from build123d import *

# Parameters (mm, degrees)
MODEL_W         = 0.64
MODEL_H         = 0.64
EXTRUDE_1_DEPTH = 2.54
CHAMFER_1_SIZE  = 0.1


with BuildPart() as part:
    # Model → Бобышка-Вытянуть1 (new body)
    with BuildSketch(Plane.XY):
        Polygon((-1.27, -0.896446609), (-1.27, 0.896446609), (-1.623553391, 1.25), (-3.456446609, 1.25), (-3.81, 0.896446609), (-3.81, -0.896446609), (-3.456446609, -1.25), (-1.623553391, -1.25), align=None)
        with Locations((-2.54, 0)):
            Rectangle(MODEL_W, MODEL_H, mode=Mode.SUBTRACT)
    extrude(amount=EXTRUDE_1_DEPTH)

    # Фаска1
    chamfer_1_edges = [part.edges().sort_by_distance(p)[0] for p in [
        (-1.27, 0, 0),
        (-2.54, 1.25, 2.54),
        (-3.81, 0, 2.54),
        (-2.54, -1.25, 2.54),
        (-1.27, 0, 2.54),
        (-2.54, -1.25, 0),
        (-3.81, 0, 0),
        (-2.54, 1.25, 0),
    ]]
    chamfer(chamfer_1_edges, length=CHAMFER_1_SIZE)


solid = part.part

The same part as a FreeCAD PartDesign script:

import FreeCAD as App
import Part
import Sketcher

V = App.Vector


def edges_at(feature, points):
    """Names of the edges that pass closest to the given points."""
    edges = feature.Shape.Edges
    near = lambda p: min(range(len(edges)), key=lambda i: edges[i].distToShape(Part.Vertex(*p))[0])
    return sorted({f"Edge{near(p) + 1}" for p in points})

doc = App.newDocument("Part")
params = doc.addObject("Spreadsheet::Sheet", "Params")
for row, (alias, value) in enumerate([
    ("sketch1_length", "0.5 mm"),
    ("sketch1_width", "0.64 mm"),
    ("pad1_length", "2.54 mm"),
    ("chamfer_size", "0.1 mm"),
], start=1):
    params.set(f"A{row}", alias)
    params.set(f"B{row}", "=" + value)
    params.setAlias(f"B{row}", alias)

body = doc.addObject("PartDesign::Body", "Body")

# Sketch on XY plane
sketch1 = doc.addObject("Sketcher::SketchObject", "Sketch")
body.addObject(sketch1)
sketch1.AttachmentSupport = (doc.XY_Plane, [""])
sketch1.MapMode = "FlatFace"
sketch1.addGeometry([
    Part.LineSegment(V(-1.3, -0.9, 0), V(-1.3, 0.9, 0)),  # 0
    Part.LineSegment(V(-1.3, 0.9, 0), V(-1.6, 1.2, 0)),  # 1
    Part.LineSegment(V(-1.6, 1.2, 0), V(-3.5, 1.2, 0)),  # 2
    Part.LineSegment(V(-3.5, 1.2, 0), V(-3.8, 0.9, 0)),  # 3
    Part.LineSegment(V(-3.8, 0.9, 0), V(-3.8, -0.9, 0)),  # 4
    Part.LineSegment(V(-3.8, -0.9, 0), V(-3.5, -1.2, 0)),  # 5
    Part.LineSegment(V(-3.5, -1.2, 0), V(-1.6, -1.2, 0)),  # 6
    Part.LineSegment(V(-1.6, -1.2, 0), V(-1.3, -0.9, 0)),  # 7
    Part.LineSegment(V(-2.2, -0.3, 0), V(-2.9, -0.3, 0)),  # 8
    Part.LineSegment(V(-2.9, -0.3, 0), V(-2.9, 0.3, 0)),  # 9
    Part.LineSegment(V(-2.9, 0.3, 0), V(-2.2, 0.3, 0)),  # 10
    Part.LineSegment(V(-2.2, 0.3, 0), V(-2.2, -0.3, 0)),  # 11
], False)
sketch1.addConstraint([
    Sketcher.Constraint("Coincident", 0, 2, 1, 1),
    Sketcher.Constraint("Coincident", 1, 2, 2, 1),
    Sketcher.Constraint("Coincident", 2, 2, 3, 1),
    Sketcher.Constraint("Coincident", 3, 2, 4, 1),
    Sketcher.Constraint("Coincident", 4, 2, 5, 1),
    Sketcher.Constraint("Coincident", 5, 2, 6, 1),
    Sketcher.Constraint("Coincident", 6, 2, 7, 1),
    Sketcher.Constraint("Coincident", 7, 2, 0, 1),
    Sketcher.Constraint("Coincident", 8, 2, 9, 1),
    Sketcher.Constraint("Coincident", 9, 2, 10, 1),
    Sketcher.Constraint("Coincident", 10, 2, 11, 1),
    Sketcher.Constraint("Coincident", 11, 2, 8, 1),
    Sketcher.Constraint("Vertical", 0),
    Sketcher.Constraint("Horizontal", 2),
    Sketcher.Constraint("Vertical", 4),
    Sketcher.Constraint("Horizontal", 6),
    Sketcher.Constraint("Horizontal", 8),
    Sketcher.Constraint("Vertical", 9),
    Sketcher.Constraint("Horizontal", 10),
    Sketcher.Constraint("Vertical", 11),
    Sketcher.Constraint("Symmetric", 2, 2, 5, 2, -1),
    Sketcher.Constraint("Perpendicular", 1, 3),
    Sketcher.Constraint("Perpendicular", 3, 5),
    Sketcher.Constraint("Perpendicular", 5, 7),
    Sketcher.Constraint("Horizontal", 0, 2, 3, 2),
    Sketcher.Constraint("Horizontal", 4, 2, 7, 2),
    Sketcher.Constraint("Vertical", 1, 2, 6, 2),
    Sketcher.Constraint("Equal", 10, 9),
    Sketcher.Constraint("Distance", 1, 0.5),
    Sketcher.Constraint("DistanceX", 8, 2, 8, 1, 0.64),
    Sketcher.Constraint("DistanceY", 5, 2, 2, 2, 2.5),
    Sketcher.Constraint("DistanceX", 0, 2, -1, 1, 1.27),
    Sketcher.Constraint("DistanceX", 3, 2, -1, 1, 3.81),
    Sketcher.Constraint("DistanceX", 8, 2, -1, 1, 2.86),
    Sketcher.Constraint("DistanceY", 8, 2, -1, 1, 0.32),
])
sketch1.setExpression("Constraints[28]", "Params.sketch1_length")
sketch1.setExpression("Constraints[29]", "Params.sketch1_width")
pad1 = doc.addObject("PartDesign::Pad", "Pad")
body.addObject(pad1)
pad1.Profile = sketch1
pad1.setExpression("Length", "Params.pad1_length")
doc.recompute()

chamfer = doc.addObject("PartDesign::Chamfer", "Chamfer")
body.addObject(chamfer)
chamfer.Base = (pad1, edges_at(pad1, [
    (-1.27, 0, 0),
    (-2.54, 1.25, 2.54),
    (-3.81, 0, 2.54),
    (-2.54, -1.25, 2.54),
    (-1.27, 0, 2.54),
    (-2.54, -1.25, 0),
    (-3.81, 0, 0),
    (-2.54, 1.25, 0),
]))
chamfer.setExpression("Size", "Params.chamfer_size")

doc.recompute()
